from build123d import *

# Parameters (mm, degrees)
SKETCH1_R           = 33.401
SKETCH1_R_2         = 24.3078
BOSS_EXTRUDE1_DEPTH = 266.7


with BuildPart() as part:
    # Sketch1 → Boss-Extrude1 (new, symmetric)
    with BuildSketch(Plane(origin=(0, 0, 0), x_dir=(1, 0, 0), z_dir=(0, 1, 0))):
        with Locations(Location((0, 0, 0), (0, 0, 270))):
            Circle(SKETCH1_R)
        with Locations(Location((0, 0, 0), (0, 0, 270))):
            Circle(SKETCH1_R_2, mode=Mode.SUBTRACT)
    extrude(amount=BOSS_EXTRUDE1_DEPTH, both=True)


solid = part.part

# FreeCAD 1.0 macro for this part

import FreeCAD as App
import Part
import Sketcher
Q = App.Units.Quantity

doc = App.newDocument("Part")
params = doc.addObject("Spreadsheet::Sheet", "Params")
for row, (alias, value) in enumerate([
    ("sketch1_diameter", "2.63 in"),
    ("sketch1_diameter2", "1.914 in"),
    ("pad1_length", "21 in"),
], start=1):
    params.set(f"A{row}", alias)
    params.set(f"B{row}", "=" + value)
    params.setAlias(f"B{row}", alias)

body = doc.addObject("PartDesign::Body", "Body")

# Sketch on XZ plane
sketch1 = body.newObject("Sketcher::SketchObject", "Sketch")
sketch1.AttachmentSupport = (doc.getObject("XZ_Plane"), [""])
sketch1.MapMode = "FlatFace"
sketch1.addGeometry(Part.Circle(App.Vector(0, 0, 0), App.Vector(0, 0, 1), 33), False)
sketch1.addGeometry(Part.Circle(App.Vector(0, 0, 0), App.Vector(0, 0, 1), 24), False)
sketch1.addConstraint(Sketcher.Constraint("Coincident", 0, 3, -1, 1))
sketch1.addConstraint(Sketcher.Constraint("Coincident", 1, 3, -1, 1))
sketch1.addConstraint(Sketcher.Constraint("Diameter", 0, Q("2.63 in")))
sketch1.addConstraint(Sketcher.Constraint("Diameter", 1, Q("1.914 in")))
sketch1.setExpression("Constraints[2]", "Params.sketch1_diameter")
sketch1.setExpression("Constraints[3]", "Params.sketch1_diameter2")
pad1 = body.newObject("PartDesign::Pad", "Pad")
pad1.Profile = sketch1
pad1.setExpression("Length", "Params.pad1_length")
pad1.Midplane = True

doc.recompute()
